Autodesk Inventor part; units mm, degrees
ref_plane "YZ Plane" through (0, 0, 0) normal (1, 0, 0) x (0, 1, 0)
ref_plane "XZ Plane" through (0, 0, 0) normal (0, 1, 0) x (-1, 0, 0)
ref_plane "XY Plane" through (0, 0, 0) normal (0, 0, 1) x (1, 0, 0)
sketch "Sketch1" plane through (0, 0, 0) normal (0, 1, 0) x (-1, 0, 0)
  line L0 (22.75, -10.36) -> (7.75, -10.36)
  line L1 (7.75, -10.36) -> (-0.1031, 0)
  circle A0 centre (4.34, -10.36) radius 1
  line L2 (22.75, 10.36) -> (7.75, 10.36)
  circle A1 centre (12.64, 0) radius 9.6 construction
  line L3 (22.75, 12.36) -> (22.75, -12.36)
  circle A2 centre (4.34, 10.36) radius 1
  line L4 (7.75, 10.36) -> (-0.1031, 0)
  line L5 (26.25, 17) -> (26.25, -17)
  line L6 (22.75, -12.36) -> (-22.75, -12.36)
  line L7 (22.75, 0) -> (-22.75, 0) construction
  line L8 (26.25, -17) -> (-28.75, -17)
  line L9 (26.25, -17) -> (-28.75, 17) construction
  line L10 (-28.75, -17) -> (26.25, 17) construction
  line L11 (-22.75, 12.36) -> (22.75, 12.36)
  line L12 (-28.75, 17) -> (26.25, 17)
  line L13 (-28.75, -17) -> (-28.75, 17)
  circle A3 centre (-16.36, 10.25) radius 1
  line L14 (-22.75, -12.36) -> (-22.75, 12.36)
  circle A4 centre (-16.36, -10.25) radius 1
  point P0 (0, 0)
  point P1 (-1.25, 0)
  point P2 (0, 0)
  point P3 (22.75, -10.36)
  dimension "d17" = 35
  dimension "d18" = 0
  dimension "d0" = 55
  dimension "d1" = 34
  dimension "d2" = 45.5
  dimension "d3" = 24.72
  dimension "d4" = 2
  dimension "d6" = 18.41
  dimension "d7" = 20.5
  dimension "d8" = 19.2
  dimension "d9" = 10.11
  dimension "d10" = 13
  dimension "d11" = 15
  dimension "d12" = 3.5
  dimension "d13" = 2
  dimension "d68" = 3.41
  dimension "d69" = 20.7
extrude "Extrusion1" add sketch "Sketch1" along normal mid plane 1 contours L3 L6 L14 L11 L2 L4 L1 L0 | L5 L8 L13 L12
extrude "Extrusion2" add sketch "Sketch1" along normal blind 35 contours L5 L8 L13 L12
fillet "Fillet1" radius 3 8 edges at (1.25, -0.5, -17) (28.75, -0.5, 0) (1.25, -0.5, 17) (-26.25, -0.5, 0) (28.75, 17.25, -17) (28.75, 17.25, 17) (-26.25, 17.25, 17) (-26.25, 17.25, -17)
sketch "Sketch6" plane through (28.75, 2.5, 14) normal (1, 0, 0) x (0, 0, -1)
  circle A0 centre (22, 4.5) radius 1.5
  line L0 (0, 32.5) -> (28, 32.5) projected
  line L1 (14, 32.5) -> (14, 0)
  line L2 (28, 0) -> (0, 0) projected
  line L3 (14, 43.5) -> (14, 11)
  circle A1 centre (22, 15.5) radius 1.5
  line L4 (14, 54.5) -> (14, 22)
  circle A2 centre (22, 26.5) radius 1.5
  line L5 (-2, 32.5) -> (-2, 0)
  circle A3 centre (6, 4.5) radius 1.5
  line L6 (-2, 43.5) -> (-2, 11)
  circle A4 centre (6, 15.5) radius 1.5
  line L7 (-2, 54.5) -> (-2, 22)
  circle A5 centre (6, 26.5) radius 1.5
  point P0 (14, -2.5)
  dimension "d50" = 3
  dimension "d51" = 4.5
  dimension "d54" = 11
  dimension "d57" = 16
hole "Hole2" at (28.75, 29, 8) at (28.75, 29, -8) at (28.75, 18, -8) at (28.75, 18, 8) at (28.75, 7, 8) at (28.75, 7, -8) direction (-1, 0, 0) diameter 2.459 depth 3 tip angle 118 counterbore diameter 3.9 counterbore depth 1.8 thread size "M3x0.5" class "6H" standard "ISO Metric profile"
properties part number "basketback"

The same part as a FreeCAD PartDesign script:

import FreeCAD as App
import Part
import Sketcher
from FreeCAD import Vector


def edges_at(feature, points):
    """Names of the edges that pass closest to the given points."""
    edges = feature.Shape.Edges
    near = lambda p: min(range(len(edges)), key=lambda i: edges[i].distToShape(Part.Vertex(*p))[0])
    return sorted({f"Edge{near(p) + 1}" for p in points})


def add_polygon(sketch, points):
    """Adds a closed chain of lines whose ends are joined by coincident constraints."""
    first, n = sketch.GeometryCount, len(points)
    for a, b in zip(points, points[1:] + points[:1]):
        sketch.addGeometry(Part.LineSegment(App.Vector(*a, 0), App.Vector(*b, 0)), False)
    for i in range(n):
        sketch.addConstraint(Sketcher.Constraint("Coincident", first + i, 2, first + (i + 1) % n, 1))

doc = App.newDocument("Part")
body = doc.addObject("PartDesign::Body", "Body")

# Sketch on XZ plane
sketch1 = body.newObject("Sketcher::SketchObject", "Sketch")
sketch1.AttachmentSupport = (doc.getObject("XZ_Plane"), [""])
sketch1.MapMode = "FlatFace"
add_polygon(sketch1, [(-26.2, -17), (-26.2, 17), (28.8, 17), (28.8, -17)])  # lines 0-3
add_polygon(sketch1, [(-7.8, 10.4), (-22.8, 10.4), (-22.8, -10.4), (-7.8, -10.4), (0.1, 0)])  # lines 4-8
sketch1.addGeometry(Part.Circle(Vector(16.4, -10.2, 0), Vector(0, 0, 1), 1), False)  # 9
sketch1.addGeometry(Part.Circle(Vector(-4.3, -10.4, 0), Vector(0, 0, 1), 1), False)  # 10
sketch1.addGeometry(Part.Circle(Vector(16.4, 10.2, 0), Vector(0, 0, 1), 1), False)  # 11
sketch1.addGeometry(Part.Circle(Vector(-4.3, 10.4, 0), Vector(0, 0, 1), 1), False)  # 12
sketch1.addConstraint([
    Sketcher.Constraint("Vertical", 0),
    Sketcher.Constraint("Horizontal", 1),
    Sketcher.Constraint("Vertical", 2),
    Sketcher.Constraint("Horizontal", 3),
    Sketcher.Constraint("Horizontal", 4),
    Sketcher.Constraint("Vertical", 5),
    Sketcher.Constraint("Horizontal", 6),
    Sketcher.Constraint("Equal", 9, 10),
    Sketcher.Constraint("Equal", 10, 11),
    Sketcher.Constraint("Equal", 11, 12),
    Sketcher.Constraint("Symmetric", 9, 3, 11, 3, -1),
    Sketcher.Constraint("Symmetric", 10, 3, 12, 3, -1),
    Sketcher.Constraint("Symmetric", 6, 2, 8, 2, -1),
    Sketcher.Constraint("PointOnObject", 7, 2, -1),
    Sketcher.Constraint("Horizontal", 12, 3, 4, 2),
    Sketcher.Constraint("Diameter", 9, 2.0),
    Sketcher.Constraint("DistanceX", 1, 1, 1, 2, 55.0),
    Sketcher.Constraint("DistanceX", 4, 2, 4, 1, 15.0),
    Sketcher.Constraint("DistanceY", 0, 1, 0, 2, 34.0),
    Sketcher.Constraint("Distance", 7, 13.0),
    Sketcher.Constraint("DistanceX", 10, 3, 9, 3, 20.7),
    Sketcher.Constraint("DistanceY", 9, 3, 11, 3, 20.5),
    Sketcher.Constraint("DistanceX", 0, 2, 4, 2, 3.5),
    Sketcher.Constraint("DistanceX", 4, 2, 12, 3, 18.41),
    Sketcher.Constraint("DistanceY", -1, 1, 0, 2, 17.0),
    Sketcher.Constraint("DistanceY", 5, 2, 5, 1, 20.72),
    Sketcher.Constraint("DistanceX", -1, 1, 9, 3, 16.36),
])
pad1 = body.newObject("PartDesign::Pad", "Pad")
pad1.Profile = sketch1
pad1.Length = 1
pad1.Midplane = True

# Sketch on XZ plane
sketch2 = body.newObject("Sketcher::SketchObject", "Sketch001")
sketch2.AttachmentSupport = (doc.getObject("XZ_Plane"), [""])
sketch2.MapMode = "FlatFace"
add_polygon(sketch2, [(-26, -17), (-26, 17), (29, 17), (29, -17)])  # lines 0-3
add_polygon(sketch2, [(-23, 12), (-23, -12), (23, -12), (23, 12)])  # lines 4-7
sketch2.addConstraint([
    Sketcher.Constraint("Vertical", 0),
    Sketcher.Constraint("Horizontal", 1),
    Sketcher.Constraint("Vertical", 2),
    Sketcher.Constraint("Horizontal", 3),
    Sketcher.Constraint("Vertical", 4),
    Sketcher.Constraint("Horizontal", 5),
    Sketcher.Constraint("Vertical", 6),
    Sketcher.Constraint("Horizontal", 7),
    Sketcher.Constraint("Symmetric", 4, 2, 6, 2, -1, 1),
    Sketcher.Constraint("DistanceX", 1, 1, 1, 2, 55.0),
    Sketcher.Constraint("DistanceY", 0, 1, 0, 2, 34.0),
    Sketcher.Constraint("DistanceX", 5, 1, 5, 2, 45.5),
    Sketcher.Constraint("DistanceY", 4, 2, 4, 1, 24.72),
    Sketcher.Constraint("DistanceX", 3, 2, 4, 2, 3.5),
    Sketcher.Constraint("DistanceY", -1, 1, 0, 2, 17.0),
])
pad2 = body.newObject("PartDesign::Pad", "Pad001")
pad2.Profile = sketch2
pad2.Length = 35
pad2.Reversed = True
doc.recompute()

fillet = body.newObject("PartDesign::Fillet", "Fillet")
fillet.Base = (pad2, edges_at(pad2, [
    (1.25, -0.5, -17),
    (28.75, -0.5, 0),
    (1.25, -0.5, 17),
    (-26.25, -0.5, 0),
    (28.75, 17.25, -17),
    (28.75, 17.25, 17),
    (-26.25, 17.25, 17),
    (-26.25, 17.25, -17),
]))
fillet.Radius = 3

# Sketch on YZ plane
sketch3 = body.newObject("Sketcher::SketchObject", "Sketch002")
sketch3.AttachmentSupport = (doc.getObject("YZ_Plane"), [""])
sketch3.MapMode = "FlatFace"
sketch3.AttachmentOffset = App.Placement(Vector(0, 0, 28.75), App.Rotation())
sketch3.addGeometry([
    Part.Circle(Vector(29, 8, 0), Vector(0, 0, 1), 1.2),  # 0
    Part.Circle(Vector(29, -8, 0), Vector(0, 0, 1), 1.2),  # 1
    Part.Circle(Vector(18, -8, 0), Vector(0, 0, 1), 1.2),  # 2
    Part.Circle(Vector(18, 8, 0), Vector(0, 0, 1), 1.2),  # 3
    Part.Circle(Vector(7, 8, 0), Vector(0, 0, 1), 1.2),  # 4
    Part.Circle(Vector(7, -8, 0), Vector(0, 0, 1), 1.2),  # 5
], False)
sketch3.addConstraint([
    Sketcher.Constraint("Equal", 0, 1),
    Sketcher.Constraint("Equal", 1, 2),
    Sketcher.Constraint("Equal", 2, 3),
    Sketcher.Constraint("Equal", 3, 4),
    Sketcher.Constraint("Equal", 4, 5),
    Sketcher.Constraint("Symmetric", 0, 3, 1, 3, -1),
    Sketcher.Constraint("Symmetric", 2, 3, 3, 3, -1),
    Sketcher.Constraint("Symmetric", 4, 3, 5, 3, -1),
    Sketcher.Constraint("Horizontal", 1, 3, 2, 3),
    Sketcher.Constraint("Horizontal", 3, 3, 4, 3),
    Sketcher.Constraint("Diameter", 0, 2.459),
    Sketcher.Constraint("DistanceX", -1, 1, 0, 3, 29.0),
    Sketcher.Constraint("DistanceY", -1, 1, 0, 3, 8.0),
    Sketcher.Constraint("DistanceX", -1, 1, 2, 3, 18.0),
    Sketcher.Constraint("DistanceX", -1, 1, 4, 3, 7.0),
])
doc.recompute()
hole = body.newObject("PartDesign::Hole", "Hole")
hole.Profile = sketch3
hole.ThreadType = "None"
hole.Diameter = 2.459
hole.DepthType = "Dimension"
hole.Depth = 3
hole.DrillPoint = "Angled"
hole.DrillPointAngle = 118
hole.HoleCutType = "Counterbore"
hole.HoleCutDiameter = 3.9
hole.HoleCutDepth = 1.8

doc.recompute()
